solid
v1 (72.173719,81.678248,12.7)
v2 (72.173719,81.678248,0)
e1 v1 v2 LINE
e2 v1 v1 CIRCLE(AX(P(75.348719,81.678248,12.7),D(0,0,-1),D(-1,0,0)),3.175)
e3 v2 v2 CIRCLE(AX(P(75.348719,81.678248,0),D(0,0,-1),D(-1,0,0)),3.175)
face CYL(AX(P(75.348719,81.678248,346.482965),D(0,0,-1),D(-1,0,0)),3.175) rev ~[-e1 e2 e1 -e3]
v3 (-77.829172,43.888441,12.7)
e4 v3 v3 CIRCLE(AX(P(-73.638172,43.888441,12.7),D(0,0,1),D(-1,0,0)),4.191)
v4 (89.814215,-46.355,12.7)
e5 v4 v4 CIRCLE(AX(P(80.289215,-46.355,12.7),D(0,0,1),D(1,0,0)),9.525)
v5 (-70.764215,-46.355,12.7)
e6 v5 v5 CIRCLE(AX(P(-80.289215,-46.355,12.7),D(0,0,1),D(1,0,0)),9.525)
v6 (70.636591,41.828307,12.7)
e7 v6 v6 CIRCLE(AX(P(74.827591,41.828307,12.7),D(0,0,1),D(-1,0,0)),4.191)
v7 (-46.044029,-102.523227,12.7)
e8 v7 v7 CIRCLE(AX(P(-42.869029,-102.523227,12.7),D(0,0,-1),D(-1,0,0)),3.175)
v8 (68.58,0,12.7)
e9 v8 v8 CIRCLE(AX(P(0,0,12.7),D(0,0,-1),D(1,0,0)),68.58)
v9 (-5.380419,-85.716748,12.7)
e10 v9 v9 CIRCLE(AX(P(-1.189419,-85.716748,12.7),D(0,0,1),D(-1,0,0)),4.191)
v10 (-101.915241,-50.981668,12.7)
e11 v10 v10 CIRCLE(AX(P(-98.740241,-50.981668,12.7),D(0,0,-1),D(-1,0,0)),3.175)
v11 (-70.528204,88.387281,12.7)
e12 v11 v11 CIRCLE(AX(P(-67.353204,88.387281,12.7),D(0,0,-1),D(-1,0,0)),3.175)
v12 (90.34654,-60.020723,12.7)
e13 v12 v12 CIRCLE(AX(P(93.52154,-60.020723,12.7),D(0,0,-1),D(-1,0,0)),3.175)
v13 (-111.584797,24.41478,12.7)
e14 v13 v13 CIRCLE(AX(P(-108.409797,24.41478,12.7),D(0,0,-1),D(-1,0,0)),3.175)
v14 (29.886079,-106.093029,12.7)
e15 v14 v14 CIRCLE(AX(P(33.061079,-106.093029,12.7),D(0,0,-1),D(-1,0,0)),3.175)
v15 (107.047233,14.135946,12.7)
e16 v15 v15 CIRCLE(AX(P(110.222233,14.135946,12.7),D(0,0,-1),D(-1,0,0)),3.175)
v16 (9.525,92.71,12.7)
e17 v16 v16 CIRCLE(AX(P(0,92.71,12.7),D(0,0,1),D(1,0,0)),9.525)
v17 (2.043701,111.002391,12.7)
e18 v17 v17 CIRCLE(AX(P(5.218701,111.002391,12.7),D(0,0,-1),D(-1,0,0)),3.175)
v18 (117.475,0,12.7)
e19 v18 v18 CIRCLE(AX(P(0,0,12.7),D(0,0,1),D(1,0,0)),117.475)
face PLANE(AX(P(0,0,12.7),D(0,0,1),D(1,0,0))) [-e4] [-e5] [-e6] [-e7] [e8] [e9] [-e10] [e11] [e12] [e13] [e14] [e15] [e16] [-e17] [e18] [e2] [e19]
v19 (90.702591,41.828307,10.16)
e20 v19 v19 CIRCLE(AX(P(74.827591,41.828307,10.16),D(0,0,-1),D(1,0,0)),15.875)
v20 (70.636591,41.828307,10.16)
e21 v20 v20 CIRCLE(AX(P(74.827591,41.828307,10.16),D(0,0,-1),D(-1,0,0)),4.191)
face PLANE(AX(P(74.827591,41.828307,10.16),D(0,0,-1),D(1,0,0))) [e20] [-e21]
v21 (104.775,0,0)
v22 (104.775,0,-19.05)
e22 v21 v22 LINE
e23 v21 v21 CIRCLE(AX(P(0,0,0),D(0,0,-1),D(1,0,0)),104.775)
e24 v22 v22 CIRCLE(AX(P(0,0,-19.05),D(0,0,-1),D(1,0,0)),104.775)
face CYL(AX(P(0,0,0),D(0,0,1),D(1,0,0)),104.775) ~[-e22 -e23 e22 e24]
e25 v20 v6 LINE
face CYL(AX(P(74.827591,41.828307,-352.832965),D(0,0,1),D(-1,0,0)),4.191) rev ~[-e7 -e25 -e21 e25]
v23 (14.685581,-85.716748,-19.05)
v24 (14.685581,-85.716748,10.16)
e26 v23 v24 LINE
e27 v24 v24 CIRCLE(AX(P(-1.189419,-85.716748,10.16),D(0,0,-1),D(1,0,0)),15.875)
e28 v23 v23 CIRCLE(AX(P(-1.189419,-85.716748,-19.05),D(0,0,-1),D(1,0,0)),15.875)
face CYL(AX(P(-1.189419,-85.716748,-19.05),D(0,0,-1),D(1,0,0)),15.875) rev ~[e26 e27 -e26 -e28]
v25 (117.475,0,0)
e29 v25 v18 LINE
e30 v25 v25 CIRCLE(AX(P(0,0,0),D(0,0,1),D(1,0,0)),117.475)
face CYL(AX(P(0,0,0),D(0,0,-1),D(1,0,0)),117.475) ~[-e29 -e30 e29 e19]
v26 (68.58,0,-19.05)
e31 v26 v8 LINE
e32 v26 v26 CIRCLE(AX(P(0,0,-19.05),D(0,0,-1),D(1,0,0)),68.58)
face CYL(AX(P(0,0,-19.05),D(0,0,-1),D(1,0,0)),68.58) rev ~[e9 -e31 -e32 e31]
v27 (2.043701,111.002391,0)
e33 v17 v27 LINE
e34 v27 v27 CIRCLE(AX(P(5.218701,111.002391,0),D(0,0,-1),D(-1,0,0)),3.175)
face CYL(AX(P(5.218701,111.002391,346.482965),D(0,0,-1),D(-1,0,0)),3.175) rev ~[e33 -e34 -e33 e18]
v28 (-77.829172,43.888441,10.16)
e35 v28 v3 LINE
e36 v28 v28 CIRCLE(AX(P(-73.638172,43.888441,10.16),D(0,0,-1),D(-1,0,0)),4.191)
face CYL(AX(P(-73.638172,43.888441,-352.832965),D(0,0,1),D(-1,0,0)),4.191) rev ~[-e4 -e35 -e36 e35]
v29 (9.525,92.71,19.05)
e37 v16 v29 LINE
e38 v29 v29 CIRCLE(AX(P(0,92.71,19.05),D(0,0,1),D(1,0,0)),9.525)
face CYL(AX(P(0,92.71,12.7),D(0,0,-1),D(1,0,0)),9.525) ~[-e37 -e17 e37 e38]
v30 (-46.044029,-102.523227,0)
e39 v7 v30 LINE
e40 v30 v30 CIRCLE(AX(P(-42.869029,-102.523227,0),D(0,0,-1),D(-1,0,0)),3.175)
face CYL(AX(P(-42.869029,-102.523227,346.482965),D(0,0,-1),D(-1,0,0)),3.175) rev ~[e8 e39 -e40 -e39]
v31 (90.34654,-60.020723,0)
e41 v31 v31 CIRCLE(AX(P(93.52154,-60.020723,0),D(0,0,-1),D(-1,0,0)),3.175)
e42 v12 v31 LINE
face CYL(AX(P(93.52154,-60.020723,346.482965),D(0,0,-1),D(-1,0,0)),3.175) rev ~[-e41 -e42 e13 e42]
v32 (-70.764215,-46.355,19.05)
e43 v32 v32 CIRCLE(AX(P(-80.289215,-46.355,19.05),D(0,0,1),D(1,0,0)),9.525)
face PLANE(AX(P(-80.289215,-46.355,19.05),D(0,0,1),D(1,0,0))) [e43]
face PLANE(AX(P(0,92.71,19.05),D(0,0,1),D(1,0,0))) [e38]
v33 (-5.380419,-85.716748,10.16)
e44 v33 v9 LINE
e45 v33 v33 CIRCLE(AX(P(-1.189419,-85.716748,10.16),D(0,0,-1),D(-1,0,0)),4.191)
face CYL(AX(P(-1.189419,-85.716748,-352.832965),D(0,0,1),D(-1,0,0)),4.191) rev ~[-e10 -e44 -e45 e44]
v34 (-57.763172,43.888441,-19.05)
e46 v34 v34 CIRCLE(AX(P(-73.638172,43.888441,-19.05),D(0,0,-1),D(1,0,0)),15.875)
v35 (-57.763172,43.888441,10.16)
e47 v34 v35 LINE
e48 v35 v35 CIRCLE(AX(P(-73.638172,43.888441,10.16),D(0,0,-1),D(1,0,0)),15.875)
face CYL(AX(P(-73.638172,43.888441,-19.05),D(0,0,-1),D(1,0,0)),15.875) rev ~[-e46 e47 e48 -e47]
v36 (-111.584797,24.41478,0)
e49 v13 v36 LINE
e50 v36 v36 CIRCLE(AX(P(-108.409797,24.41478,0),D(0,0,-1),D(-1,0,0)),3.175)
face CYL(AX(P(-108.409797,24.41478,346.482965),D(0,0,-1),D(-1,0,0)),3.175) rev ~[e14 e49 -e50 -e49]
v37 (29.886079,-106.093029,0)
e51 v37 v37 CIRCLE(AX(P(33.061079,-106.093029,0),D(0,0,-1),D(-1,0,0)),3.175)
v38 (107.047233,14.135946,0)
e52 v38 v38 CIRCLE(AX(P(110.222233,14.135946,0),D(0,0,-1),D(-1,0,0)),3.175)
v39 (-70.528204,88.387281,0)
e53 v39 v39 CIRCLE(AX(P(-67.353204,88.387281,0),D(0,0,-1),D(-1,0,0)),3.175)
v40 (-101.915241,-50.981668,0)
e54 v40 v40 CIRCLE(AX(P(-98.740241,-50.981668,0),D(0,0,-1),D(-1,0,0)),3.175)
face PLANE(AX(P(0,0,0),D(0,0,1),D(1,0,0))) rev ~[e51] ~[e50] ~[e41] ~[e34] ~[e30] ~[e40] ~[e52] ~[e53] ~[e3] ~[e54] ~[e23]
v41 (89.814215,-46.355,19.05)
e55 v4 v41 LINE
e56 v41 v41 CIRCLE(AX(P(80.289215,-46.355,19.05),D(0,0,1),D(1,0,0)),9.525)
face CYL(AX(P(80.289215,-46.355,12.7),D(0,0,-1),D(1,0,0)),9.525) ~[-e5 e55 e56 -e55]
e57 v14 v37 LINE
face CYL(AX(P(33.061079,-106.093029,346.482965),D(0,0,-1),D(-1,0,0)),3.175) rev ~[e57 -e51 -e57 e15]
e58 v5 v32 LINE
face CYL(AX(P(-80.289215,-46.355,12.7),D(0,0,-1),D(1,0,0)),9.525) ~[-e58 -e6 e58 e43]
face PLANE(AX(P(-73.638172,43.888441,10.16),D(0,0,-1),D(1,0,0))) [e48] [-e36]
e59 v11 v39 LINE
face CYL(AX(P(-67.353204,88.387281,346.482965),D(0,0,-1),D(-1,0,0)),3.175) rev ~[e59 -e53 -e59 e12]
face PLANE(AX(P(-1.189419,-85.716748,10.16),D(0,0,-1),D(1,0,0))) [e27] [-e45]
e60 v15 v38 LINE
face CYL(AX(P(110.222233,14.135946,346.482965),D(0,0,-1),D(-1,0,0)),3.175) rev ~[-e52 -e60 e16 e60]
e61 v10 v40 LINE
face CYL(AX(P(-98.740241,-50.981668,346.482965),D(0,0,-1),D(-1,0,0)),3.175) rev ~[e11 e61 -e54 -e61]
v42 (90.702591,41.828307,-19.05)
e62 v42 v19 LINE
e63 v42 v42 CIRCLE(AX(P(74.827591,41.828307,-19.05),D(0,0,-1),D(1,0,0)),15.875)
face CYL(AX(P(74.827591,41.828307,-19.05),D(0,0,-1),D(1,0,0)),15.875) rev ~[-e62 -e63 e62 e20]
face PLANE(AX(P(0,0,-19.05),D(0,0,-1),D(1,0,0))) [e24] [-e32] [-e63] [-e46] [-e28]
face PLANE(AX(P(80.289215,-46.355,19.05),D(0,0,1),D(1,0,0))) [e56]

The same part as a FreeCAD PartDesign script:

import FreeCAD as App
import Part
import Sketcher
from FreeCAD import Vector
Q = App.Units.Quantity

doc = App.newDocument("Part")
body = doc.addObject("PartDesign::Body", "Body")

# Sketch on XY plane
sketch1 = body.newObject("Sketcher::SketchObject", "Sketch")
sketch1.AttachmentSupport = (doc.getObject("XY_Plane"), [""])
sketch1.MapMode = "FlatFace"
sketch1.addGeometry(Part.Circle(Vector(0, 0, 0), Vector(0, 0, 1), 117), False)
sketch1.addConstraint([
    Sketcher.Constraint("Coincident", 0, 3, -1, 1),
    Sketcher.Constraint("Diameter", 0, Q("9.25 in")),
])
pad1 = body.newObject("PartDesign::Pad", "Pad")
pad1.Profile = sketch1
pad1.Length = Q("0.5 in")

# Sketch on XY plane
sketch2 = body.newObject("Sketcher::SketchObject", "Sketch001")
sketch2.AttachmentSupport = (doc.getObject("XY_Plane"), [""])
sketch2.MapMode = "FlatFace"
sketch2.addGeometry(Part.Circle(Vector(0, 0, 0), Vector(0, 0, 1), 105), False)
sketch2.addConstraint([
    Sketcher.Constraint("Coincident", 0, 3, -1, 1),
    Sketcher.Constraint("Diameter", 0, Q("8.25 in")),
])
pad2 = body.newObject("PartDesign::Pad", "Pad001")
pad2.Profile = sketch2
pad2.Length = Q("0.75 in")
pad2.Reversed = True

# Sketch on XY plane
sketch3 = body.newObject("Sketcher::SketchObject", "Sketch002")
sketch3.AttachmentSupport = (doc.getObject("XY_Plane"), [""])
sketch3.MapMode = "FlatFace"
sketch3.AttachmentOffset = App.Placement(Vector(0, 0, 0.5 * 25.4), App.Rotation())
sketch3.addGeometry([
    Part.Circle(Vector(-108.4, 24.4, 0), Vector(0, 0, 1), 3.2),  # 0
    Part.Circle(Vector(-98.7, -51, 0), Vector(0, 0, 1), 3.2),  # 1
    Part.Circle(Vector(-42.9, -102.5, 0), Vector(0, 0, 1), 3.2),  # 2
    Part.Circle(Vector(33.1, -106.1, 0), Vector(0, 0, 1), 3.2),  # 3
    Part.Circle(Vector(93.5, -60, 0), Vector(0, 0, 1), 3.2),  # 4
    Part.Circle(Vector(110.2, 14.1, 0), Vector(0, 0, 1), 3.2),  # 5
    Part.Circle(Vector(75.3, 81.7, 0), Vector(0, 0, 1), 3.2),  # 6
    Part.Circle(Vector(-67.4, 88.4, 0), Vector(0, 0, 1), 3.2),  # 7
    Part.Circle(Vector(5.2, 111, 0), Vector(0, 0, 1), 3.2),  # 8
], False)
sketch3.addConstraint([
    Sketcher.Constraint("Equal", 0, 1),
    Sketcher.Constraint("Equal", 1, 2),
    Sketcher.Constraint("Equal", 2, 3),
    Sketcher.Constraint("Equal", 3, 4),
    Sketcher.Constraint("Equal", 4, 5),
    Sketcher.Constraint("Equal", 5, 6),
    Sketcher.Constraint("Equal", 6, 7),
    Sketcher.Constraint("Equal", 7, 8),
    Sketcher.Constraint("Diameter", 0, Q("0.25 in")),
    Sketcher.Constraint("DistanceX", -1, 1, 8, 3, Q("5.218701 mm")),
    Sketcher.Constraint("DistanceY", 3, 3, 2, 3, Q("3.569802 mm")),
    Sketcher.Constraint("DistanceY", 5, 3, 6, 3, Q("67.542302 mm")),
    Sketcher.Constraint("DistanceY", 0, 3, 7, 3, Q("63.972501 mm")),
    Sketcher.Constraint("DistanceY", -1, 1, 0, 3, Q("24.41478 mm")),
    Sketcher.Constraint("DistanceX", 1, 3, -1, 1, Q("98.740241 mm")),
    Sketcher.Constraint("DistanceX", 2, 3, -1, 1, Q("42.869029 mm")),
    Sketcher.Constraint("DistanceX", -1, 1, 3, 3, Q("33.061079 mm")),
    Sketcher.Constraint("DistanceY", 3, 3, -1, 1, Q("106.093029 mm")),
    Sketcher.Constraint("DistanceX", -1, 1, 4, 3, Q("93.52154 mm")),
    Sketcher.Constraint("DistanceX", -1, 1, 6, 3, Q("75.348719 mm")),
    Sketcher.Constraint("DistanceY", -1, 1, 8, 3, Q("111.002391 mm")),
    Sketcher.Constraint("DistanceY", 2, 3, 1, 3, Q("51.541559 mm")),
    Sketcher.Constraint("DistanceX", 0, 3, 2, 3, Q("65.540768 mm")),
    Sketcher.Constraint("DistanceY", 4, 3, 5, 3, Q("74.156669 mm")),
    Sketcher.Constraint("DistanceX", 2, 3, 5, 3, Q("153.091262 mm")),
    Sketcher.Constraint("DistanceY", 4, 3, -1, 1, Q("60.020723 mm")),
    Sketcher.Constraint("DistanceX", 7, 3, -1, 1, Q("67.353204 mm")),
])
doc.recompute()
hole = body.newObject("PartDesign::Hole", "Hole")
hole.Profile = sketch3
hole.ThreadType = "None"
hole.Diameter = Q("0.25 in")
hole.DepthType = "ThroughAll"

# Sketch on XY plane
sketch4 = body.newObject("Sketcher::SketchObject", "Sketch003")
sketch4.AttachmentSupport = (doc.getObject("XY_Plane"), [""])
sketch4.MapMode = "FlatFace"
sketch4.AttachmentOffset = App.Placement(Vector(0, 0, -0.75 * 25.4), App.Rotation())
sketch4.addGeometry([
    Part.Circle(Vector(74.8, 41.8, 0), Vector(0, 0, 1), 4.2),
    Part.Circle(Vector(-73.6, 43.9, 0), Vector(0, 0, 1), 4.2),
    Part.Circle(Vector(-1.2, -85.7, 0), Vector(0, 0, 1), 4.2),
], False)
sketch4.addConstraint([
    Sketcher.Constraint("Equal", 0, 1),
    Sketcher.Constraint("Equal", 1, 2),
    Sketcher.Constraint("Diameter", 0, Q("0.33 in")),
    Sketcher.Constraint("DistanceX", -1, 1, 0, 3, Q("74.827591 mm")),
    Sketcher.Constraint("DistanceX", 1, 3, -1, 1, Q("73.638172 mm")),
    Sketcher.Constraint("DistanceY", -1, 1, 1, 3, Q("43.888441 mm")),
    Sketcher.Constraint("DistanceX", 2, 3, -1, 1, Q("1.189419 mm")),
    Sketcher.Constraint("DistanceY", 2, 3, 1, 3, Q("129.605189 mm")),
    Sketcher.Constraint("DistanceY", -1, 1, 0, 3, Q("41.828307 mm")),
])
doc.recompute()
hole2 = body.newObject("PartDesign::Hole", "Hole001")
hole2.Profile = sketch4
hole2.ThreadType = "None"
hole2.Diameter = Q("0.33 in")
hole2.DepthType = "ThroughAll"
hole2.Reversed = True

# Sketch on XY plane
sketch5 = body.newObject("Sketcher::SketchObject", "Sketch004")
sketch5.AttachmentSupport = (doc.getObject("XY_Plane"), [""])
sketch5.MapMode = "FlatFace"
sketch5.AttachmentOffset = App.Placement(Vector(0, 0, -0.75 * 25.4), App.Rotation())
sketch5.addGeometry([
    Part.Circle(Vector(-73.6, 43.9, 0), Vector(0, 0, 1), 15.9),  # 0
    Part.Circle(Vector(-73.6, 43.9, 0), Vector(0, 0, 1), 4.2),  # 1
    Part.Circle(Vector(-1.2, -85.7, 0), Vector(0, 0, 1), 15.9),  # 2
    Part.Circle(Vector(-1.2, -85.7, 0), Vector(0, 0, 1), 4.2),  # 3
    Part.Circle(Vector(74.8, 41.8, 0), Vector(0, 0, 1), 15.9),  # 4
    Part.Circle(Vector(74.8, 41.8, 0), Vector(0, 0, 1), 4.2),  # 5
], False)
sketch5.addConstraint([
    Sketcher.Constraint("Coincident", 1, 3, 0, 3),
    Sketcher.Constraint("Coincident", 3, 3, 2, 3),
    Sketcher.Constraint("Coincident", 5, 3, 4, 3),
    Sketcher.Constraint("Equal", 0, 2),
    Sketcher.Constraint("Equal", 1, 3),
    Sketcher.Constraint("Equal", 2, 4),
    Sketcher.Constraint("Equal", 3, 5),
    Sketcher.Constraint("Diameter", 0, Q("1.25 in")),
    Sketcher.Constraint("Diameter", 1, Q("0.33 in")),
    Sketcher.Constraint("DistanceX", 0, 3, -1, 1, Q("73.638172 mm")),
    Sketcher.Constraint("DistanceY", -1, 1, 0, 3, Q("43.888441 mm")),
    Sketcher.Constraint("DistanceX", 2, 3, -1, 1, Q("1.189419 mm")),
    Sketcher.Constraint("DistanceX", -1, 1, 4, 3, Q("74.827591 mm")),
    Sketcher.Constraint("DistanceY", 2, 3, 0, 3, Q("129.605189 mm")),
    Sketcher.Constraint("DistanceY", -1, 1, 4, 3, Q("41.828307 mm")),
])
pocket1 = body.newObject("PartDesign::Pocket", "Pocket")
pocket1.Profile = sketch5
pocket1.Length = Q("1.15 in")
pocket1.Reversed = True

# Sketch on XY plane
sketch6 = body.newObject("Sketcher::SketchObject", "Sketch005")
sketch6.AttachmentSupport = (doc.getObject("XY_Plane"), [""])
sketch6.MapMode = "FlatFace"
sketch6.AttachmentOffset = App.Placement(Vector(0, 0, -0.75 * 25.4), App.Rotation())
sketch6.addGeometry(Part.Circle(Vector(0, 0, 0), Vector(0, 0, 1), 69), False)
sketch6.addConstraint([
    Sketcher.Constraint("Coincident", 0, 3, -1, 1),
    Sketcher.Constraint("Diameter", 0, Q("5.4 in")),
])
pocket2 = body.newObject("PartDesign::Pocket", "Pocket001")
pocket2.Profile = sketch6
pocket2.Type = "ThroughAll"
pocket2.Reversed = True

# Sketch on XY plane
sketch7 = body.newObject("Sketcher::SketchObject", "Sketch006")
sketch7.AttachmentSupport = (doc.getObject("XY_Plane"), [""])
sketch7.MapMode = "FlatFace"
sketch7.AttachmentOffset = App.Placement(Vector(0, 0, 0.5 * 25.4), App.Rotation())
sketch7.addGeometry([
    Part.Circle(Vector(0, 93, 0), Vector(0, 0, 1), 10),
    Part.Circle(Vector(80, -46, 0), Vector(0, 0, 1), 10),
    Part.Circle(Vector(-80, -46, 0), Vector(0, 0, 1), 10),
], False)
sketch7.addConstraint([
    Sketcher.Constraint("Equal", 0, 1),
    Sketcher.Constraint("Equal", 1, 2),
    Sketcher.Constraint("Symmetric", 1, 3, 2, 3, -2),
    Sketcher.Constraint("PointOnObject", 0, 3, -2),
    Sketcher.Constraint("Diameter", 0, Q("0.75 in")),
    Sketcher.Constraint("DistanceY", -1, 1, 0, 3, Q("3.65 in")),
    Sketcher.Constraint("DistanceY", 1, 3, -1, 1, Q("1.825 in")),
    Sketcher.Constraint("DistanceX", 2, 3, 1, 3, Q("160.57843 mm")),
])
pad3 = body.newObject("PartDesign::Pad", "Pad002")
pad3.Profile = sketch7
pad3.Length = Q("0.25 in")

doc.recompute()
